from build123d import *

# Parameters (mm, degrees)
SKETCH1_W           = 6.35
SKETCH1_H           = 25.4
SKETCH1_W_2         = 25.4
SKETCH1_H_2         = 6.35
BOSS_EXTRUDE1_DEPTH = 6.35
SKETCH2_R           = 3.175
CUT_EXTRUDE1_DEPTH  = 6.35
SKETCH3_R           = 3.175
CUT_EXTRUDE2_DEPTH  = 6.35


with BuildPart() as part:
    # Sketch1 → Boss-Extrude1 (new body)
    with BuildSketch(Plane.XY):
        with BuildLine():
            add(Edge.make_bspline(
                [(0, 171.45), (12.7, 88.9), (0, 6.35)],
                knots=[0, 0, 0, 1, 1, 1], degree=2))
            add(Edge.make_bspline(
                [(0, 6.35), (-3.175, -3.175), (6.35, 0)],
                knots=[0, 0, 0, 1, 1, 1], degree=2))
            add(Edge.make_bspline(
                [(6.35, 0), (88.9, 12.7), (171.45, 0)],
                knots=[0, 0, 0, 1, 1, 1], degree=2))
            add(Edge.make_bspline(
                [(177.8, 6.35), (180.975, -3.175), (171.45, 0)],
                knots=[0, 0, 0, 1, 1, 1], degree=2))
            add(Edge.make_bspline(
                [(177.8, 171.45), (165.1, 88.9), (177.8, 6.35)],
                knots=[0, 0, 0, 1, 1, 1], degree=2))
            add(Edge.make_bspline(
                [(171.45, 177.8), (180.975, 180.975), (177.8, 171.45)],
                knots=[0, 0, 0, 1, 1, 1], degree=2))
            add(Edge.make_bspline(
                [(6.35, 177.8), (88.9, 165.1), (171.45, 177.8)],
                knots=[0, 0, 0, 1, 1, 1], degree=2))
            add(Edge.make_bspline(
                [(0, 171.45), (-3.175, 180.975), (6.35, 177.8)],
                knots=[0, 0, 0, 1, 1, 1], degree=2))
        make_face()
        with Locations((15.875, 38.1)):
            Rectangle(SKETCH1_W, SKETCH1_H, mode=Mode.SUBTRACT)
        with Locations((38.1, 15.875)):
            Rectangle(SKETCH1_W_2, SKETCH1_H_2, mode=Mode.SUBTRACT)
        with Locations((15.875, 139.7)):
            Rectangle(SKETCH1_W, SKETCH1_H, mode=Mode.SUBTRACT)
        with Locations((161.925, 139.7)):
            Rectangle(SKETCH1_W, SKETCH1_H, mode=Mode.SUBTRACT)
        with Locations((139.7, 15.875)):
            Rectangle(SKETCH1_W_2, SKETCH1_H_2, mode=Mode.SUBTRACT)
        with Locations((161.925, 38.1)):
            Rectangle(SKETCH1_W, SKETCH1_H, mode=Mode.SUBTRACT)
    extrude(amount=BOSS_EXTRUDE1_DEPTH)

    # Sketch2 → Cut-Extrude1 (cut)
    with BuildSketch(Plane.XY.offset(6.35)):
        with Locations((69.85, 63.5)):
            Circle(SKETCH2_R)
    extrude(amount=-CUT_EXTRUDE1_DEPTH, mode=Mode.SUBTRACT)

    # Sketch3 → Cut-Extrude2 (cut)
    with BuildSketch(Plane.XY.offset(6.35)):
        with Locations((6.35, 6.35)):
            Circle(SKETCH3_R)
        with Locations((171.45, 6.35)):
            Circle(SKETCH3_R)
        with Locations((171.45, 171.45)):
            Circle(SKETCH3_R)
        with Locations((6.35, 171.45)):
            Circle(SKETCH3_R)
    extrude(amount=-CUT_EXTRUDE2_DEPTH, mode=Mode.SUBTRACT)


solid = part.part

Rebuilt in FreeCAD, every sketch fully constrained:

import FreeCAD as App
import Part
import Sketcher

V = App.Vector
Q = App.Units.Quantity


def add_polygon(sketch, points):
    """Adds a closed chain of lines whose ends are joined by coincident constraints."""
    first, n = sketch.GeometryCount, len(points)
    for a, b in zip(points, points[1:] + points[:1]):
        sketch.addGeometry(Part.LineSegment(App.Vector(*a, 0), App.Vector(*b, 0)), False)
    for i in range(n):
        sketch.addConstraint(Sketcher.Constraint("Coincident", first + i, 2, first + (i + 1) % n, 1))

doc = App.newDocument("Part")
body = doc.addObject("PartDesign::Body", "Body")

# Sketch on XY plane
sketch1 = body.newObject("Sketcher::SketchObject", "Sketch")
sketch1.AttachmentSupport = (doc.getObject("XY_Plane"), [""])
sketch1.MapMode = "FlatFace"
sketch1.addGeometry(Part.BSplineCurve([V(0, 171.45, 0), V(12.7, 88.9, 0), V(0, 6.35, 0)], [3, 3], [0, 1], False, 2, [1, 1, 1], False), False)  # 0
sketch1.addGeometry(Part.BSplineCurve([V(0, 6.35, 0), V(-3.175, -3.175, 0), V(6.35, 0, 0)], [3, 3], [0, 1], False, 2, [1, 1, 1], False), False)  # 1
sketch1.addGeometry(Part.BSplineCurve([V(6.35, 0, 0), V(88.9, 12.7, 0), V(171.45, 0, 0)], [3, 3], [0, 1], False, 2, [1, 1, 1], False), False)  # 2
sketch1.addGeometry(Part.BSplineCurve([V(177.8, 6.35, 0), V(180.975, -3.175, 0), V(171.45, 0, 0)], [3, 3], [0, 1], False, 2, [1, 1, 1], False), False)  # 3
sketch1.addGeometry(Part.BSplineCurve([V(177.8, 171.45, 0), V(165.1, 88.9, 0), V(177.8, 6.35, 0)], [3, 3], [0, 1], False, 2, [1, 1, 1], False), False)  # 4
sketch1.addGeometry(Part.BSplineCurve([V(171.45, 177.8, 0), V(180.975, 180.975, 0), V(177.8, 171.45, 0)], [3, 3], [0, 1], False, 2, [1, 1, 1], False), False)  # 5
sketch1.addGeometry(Part.BSplineCurve([V(6.35, 177.8, 0), V(88.9, 165.1, 0), V(171.45, 177.8, 0)], [3, 3], [0, 1], False, 2, [1, 1, 1], False), False)  # 6
sketch1.addGeometry(Part.BSplineCurve([V(0, 171.45, 0), V(-3.175, 180.975, 0), V(6.35, 177.8, 0)], [3, 3], [0, 1], False, 2, [1, 1, 1], False), False)  # 7
add_polygon(sketch1, [(50.8, 12.7), (25.4, 12.7), (25.4, 19.05), (50.8, 19.05)])  # lines 8-11
add_polygon(sketch1, [(19.05, 25.4), (12.7, 25.4), (12.7, 50.8), (19.05, 50.8)])  # lines 12-15
add_polygon(sketch1, [(152.4, 12.7), (127, 12.7), (127, 19.05), (152.4, 19.05)])  # lines 16-19
add_polygon(sketch1, [(165.1, 25.4), (158.75, 25.4), (158.75, 50.8), (165.1, 50.8)])  # lines 20-23
add_polygon(sketch1, [(19.05, 127), (12.7, 127), (12.7, 152.4), (19.05, 152.4)])  # lines 24-27
add_polygon(sketch1, [(165.1, 127), (158.75, 127), (158.75, 152.4), (165.1, 152.4)])  # lines 28-31
sketch1.addConstraint([
    Sketcher.Constraint("Block", 0),
    Sketcher.Constraint("Block", 1),
    Sketcher.Constraint("Block", 2),
    Sketcher.Constraint("Block", 3),
    Sketcher.Constraint("Block", 4),
    Sketcher.Constraint("Block", 5),
    Sketcher.Constraint("Block", 6),
    Sketcher.Constraint("Block", 7),
    Sketcher.Constraint("Horizontal", 8),
    Sketcher.Constraint("Vertical", 9),
    Sketcher.Constraint("Horizontal", 10),
    Sketcher.Constraint("Vertical", 11),
    Sketcher.Constraint("Horizontal", 12),
    Sketcher.Constraint("Vertical", 13),
    Sketcher.Constraint("Horizontal", 14),
    Sketcher.Constraint("Vertical", 15),
    Sketcher.Constraint("Horizontal", 16),
    Sketcher.Constraint("Vertical", 17),
    Sketcher.Constraint("Horizontal", 18),
    Sketcher.Constraint("Vertical", 19),
    Sketcher.Constraint("Horizontal", 20),
    Sketcher.Constraint("Vertical", 21),
    Sketcher.Constraint("Horizontal", 22),
    Sketcher.Constraint("Vertical", 23),
    Sketcher.Constraint("Horizontal", 24),
    Sketcher.Constraint("Vertical", 25),
    Sketcher.Constraint("Horizontal", 26),
    Sketcher.Constraint("Vertical", 27),
    Sketcher.Constraint("Horizontal", 28),
    Sketcher.Constraint("Vertical", 29),
    Sketcher.Constraint("Horizontal", 30),
    Sketcher.Constraint("Vertical", 31),
    Sketcher.Constraint("Horizontal", 11, 2, 16, 2),
    Sketcher.Constraint("Horizontal", 10, 2, 17, 2),
    Sketcher.Constraint("Horizontal", 15, 2, 20, 2),
    Sketcher.Constraint("Horizontal", 14, 2, 21, 2),
    Sketcher.Constraint("Horizontal", 27, 2, 28, 2),
    Sketcher.Constraint("Horizontal", 26, 2, 29, 2),
    Sketcher.Constraint("Vertical", 13, 2, 24, 2),
    Sketcher.Constraint("Vertical", 15, 2, 26, 2),
    Sketcher.Constraint("Vertical", 21, 2, 28, 2),
    Sketcher.Constraint("Vertical", 23, 2, 30, 2),
    Sketcher.Constraint("Equal", 10, 16),
    Sketcher.Constraint("Equal", 14, 20),
    Sketcher.Constraint("Equal", 30, 9),
    Sketcher.Constraint("Equal", 18, 13),
    Sketcher.Constraint("Equal", 23, 25),
    Sketcher.Constraint("DistanceX", 8, 2, 8, 1, Q("1 in")),
    Sketcher.Constraint("DistanceX", -1, 1, 8, 2, Q("1 in")),
    Sketcher.Constraint("DistanceY", -1, 1, 12, 2, Q("1 in")),
    Sketcher.Constraint("DistanceX", -1, 1, 16, 2, Q("5 in")),
    Sketcher.Constraint("DistanceY", -1, 1, 24, 2, Q("5 in")),
    Sketcher.Constraint("DistanceX", 12, 2, 12, 1, Q("0.25 in")),
    Sketcher.Constraint("DistanceY", -1, 1, 8, 2, Q("0.5 in")),
    Sketcher.Constraint("DistanceX", -1, 1, 12, 2, Q("0.5 in")),
    Sketcher.Constraint("DistanceX", -1, 1, 22, 2, Q("6.5 in")),
])
pad1 = body.newObject("PartDesign::Pad", "Pad")
pad1.Profile = sketch1
pad1.Length = Q("0.25 in")

# Sketch on XY plane
sketch2 = body.newObject("Sketcher::SketchObject", "Sketch001")
sketch2.AttachmentSupport = (doc.getObject("XY_Plane"), [""])
sketch2.MapMode = "FlatFace"
sketch2.AttachmentOffset = App.Placement(V(0, 0, 0.25 * 25.4), App.Rotation())
sketch2.addGeometry(Part.Circle(V(69.85, 63.5, 0), V(0, 0, 1), 3.175), False)
sketch2.addConstraint([
    Sketcher.Constraint("Diameter", 0, Q("0.25 in")),
    Sketcher.Constraint("DistanceY", -1, 1, 0, 3, Q("2.5 in")),
    Sketcher.Constraint("DistanceX", -1, 1, 0, 3, Q("2.75 in")),
])
pocket1 = body.newObject("PartDesign::Pocket", "Pocket")
pocket1.Profile = sketch2
pocket1.Length = Q("0.25 in")

# Sketch on XY plane
sketch3 = body.newObject("Sketcher::SketchObject", "Sketch002")
sketch3.AttachmentSupport = (doc.getObject("XY_Plane"), [""])
sketch3.MapMode = "FlatFace"
sketch3.AttachmentOffset = App.Placement(V(0, 0, 0.25 * 25.4), App.Rotation())
sketch3.addGeometry([
    Part.Circle(V(6.35, 6.35, 0), V(0, 0, 1), 3.175),
    Part.Circle(V(171.45, 6.35, 0), V(0, 0, 1), 3.175),
    Part.Circle(V(171.45, 171.45, 0), V(0, 0, 1), 3.175),
    Part.Circle(V(6.35, 171.45, 0), V(0, 0, 1), 3.175),
], False)
sketch3.addConstraint([
    Sketcher.Constraint("Equal", 0, 1),
    Sketcher.Constraint("Equal", 1, 2),
    Sketcher.Constraint("Equal", 2, 3),
    Sketcher.Constraint("Horizontal", 0, 3, 1, 3),
    Sketcher.Constraint("Horizontal", 2, 3, 3, 3),
    Sketcher.Constraint("Vertical", 1, 3, 2, 3),
    Sketcher.Constraint("Vertical", 0, 3, 3, 3),
    Sketcher.Constraint("Diameter", 0, Q("0.25 in")),
    Sketcher.Constraint("DistanceX", 0, 3, 1, 3, Q("6.5 in")),
    Sketcher.Constraint("DistanceY", 1, 3, 2, 3, Q("6.5 in")),
    Sketcher.Constraint("DistanceX", -1, 1, 0, 3, Q("0.25 in")),
    Sketcher.Constraint("DistanceY", -1, 1, 0, 3, Q("0.25 in")),
])
pocket2 = body.newObject("PartDesign::Pocket", "Pocket001")
pocket2.Profile = sketch3
pocket2.Length = Q("0.25 in")

doc.recompute()
